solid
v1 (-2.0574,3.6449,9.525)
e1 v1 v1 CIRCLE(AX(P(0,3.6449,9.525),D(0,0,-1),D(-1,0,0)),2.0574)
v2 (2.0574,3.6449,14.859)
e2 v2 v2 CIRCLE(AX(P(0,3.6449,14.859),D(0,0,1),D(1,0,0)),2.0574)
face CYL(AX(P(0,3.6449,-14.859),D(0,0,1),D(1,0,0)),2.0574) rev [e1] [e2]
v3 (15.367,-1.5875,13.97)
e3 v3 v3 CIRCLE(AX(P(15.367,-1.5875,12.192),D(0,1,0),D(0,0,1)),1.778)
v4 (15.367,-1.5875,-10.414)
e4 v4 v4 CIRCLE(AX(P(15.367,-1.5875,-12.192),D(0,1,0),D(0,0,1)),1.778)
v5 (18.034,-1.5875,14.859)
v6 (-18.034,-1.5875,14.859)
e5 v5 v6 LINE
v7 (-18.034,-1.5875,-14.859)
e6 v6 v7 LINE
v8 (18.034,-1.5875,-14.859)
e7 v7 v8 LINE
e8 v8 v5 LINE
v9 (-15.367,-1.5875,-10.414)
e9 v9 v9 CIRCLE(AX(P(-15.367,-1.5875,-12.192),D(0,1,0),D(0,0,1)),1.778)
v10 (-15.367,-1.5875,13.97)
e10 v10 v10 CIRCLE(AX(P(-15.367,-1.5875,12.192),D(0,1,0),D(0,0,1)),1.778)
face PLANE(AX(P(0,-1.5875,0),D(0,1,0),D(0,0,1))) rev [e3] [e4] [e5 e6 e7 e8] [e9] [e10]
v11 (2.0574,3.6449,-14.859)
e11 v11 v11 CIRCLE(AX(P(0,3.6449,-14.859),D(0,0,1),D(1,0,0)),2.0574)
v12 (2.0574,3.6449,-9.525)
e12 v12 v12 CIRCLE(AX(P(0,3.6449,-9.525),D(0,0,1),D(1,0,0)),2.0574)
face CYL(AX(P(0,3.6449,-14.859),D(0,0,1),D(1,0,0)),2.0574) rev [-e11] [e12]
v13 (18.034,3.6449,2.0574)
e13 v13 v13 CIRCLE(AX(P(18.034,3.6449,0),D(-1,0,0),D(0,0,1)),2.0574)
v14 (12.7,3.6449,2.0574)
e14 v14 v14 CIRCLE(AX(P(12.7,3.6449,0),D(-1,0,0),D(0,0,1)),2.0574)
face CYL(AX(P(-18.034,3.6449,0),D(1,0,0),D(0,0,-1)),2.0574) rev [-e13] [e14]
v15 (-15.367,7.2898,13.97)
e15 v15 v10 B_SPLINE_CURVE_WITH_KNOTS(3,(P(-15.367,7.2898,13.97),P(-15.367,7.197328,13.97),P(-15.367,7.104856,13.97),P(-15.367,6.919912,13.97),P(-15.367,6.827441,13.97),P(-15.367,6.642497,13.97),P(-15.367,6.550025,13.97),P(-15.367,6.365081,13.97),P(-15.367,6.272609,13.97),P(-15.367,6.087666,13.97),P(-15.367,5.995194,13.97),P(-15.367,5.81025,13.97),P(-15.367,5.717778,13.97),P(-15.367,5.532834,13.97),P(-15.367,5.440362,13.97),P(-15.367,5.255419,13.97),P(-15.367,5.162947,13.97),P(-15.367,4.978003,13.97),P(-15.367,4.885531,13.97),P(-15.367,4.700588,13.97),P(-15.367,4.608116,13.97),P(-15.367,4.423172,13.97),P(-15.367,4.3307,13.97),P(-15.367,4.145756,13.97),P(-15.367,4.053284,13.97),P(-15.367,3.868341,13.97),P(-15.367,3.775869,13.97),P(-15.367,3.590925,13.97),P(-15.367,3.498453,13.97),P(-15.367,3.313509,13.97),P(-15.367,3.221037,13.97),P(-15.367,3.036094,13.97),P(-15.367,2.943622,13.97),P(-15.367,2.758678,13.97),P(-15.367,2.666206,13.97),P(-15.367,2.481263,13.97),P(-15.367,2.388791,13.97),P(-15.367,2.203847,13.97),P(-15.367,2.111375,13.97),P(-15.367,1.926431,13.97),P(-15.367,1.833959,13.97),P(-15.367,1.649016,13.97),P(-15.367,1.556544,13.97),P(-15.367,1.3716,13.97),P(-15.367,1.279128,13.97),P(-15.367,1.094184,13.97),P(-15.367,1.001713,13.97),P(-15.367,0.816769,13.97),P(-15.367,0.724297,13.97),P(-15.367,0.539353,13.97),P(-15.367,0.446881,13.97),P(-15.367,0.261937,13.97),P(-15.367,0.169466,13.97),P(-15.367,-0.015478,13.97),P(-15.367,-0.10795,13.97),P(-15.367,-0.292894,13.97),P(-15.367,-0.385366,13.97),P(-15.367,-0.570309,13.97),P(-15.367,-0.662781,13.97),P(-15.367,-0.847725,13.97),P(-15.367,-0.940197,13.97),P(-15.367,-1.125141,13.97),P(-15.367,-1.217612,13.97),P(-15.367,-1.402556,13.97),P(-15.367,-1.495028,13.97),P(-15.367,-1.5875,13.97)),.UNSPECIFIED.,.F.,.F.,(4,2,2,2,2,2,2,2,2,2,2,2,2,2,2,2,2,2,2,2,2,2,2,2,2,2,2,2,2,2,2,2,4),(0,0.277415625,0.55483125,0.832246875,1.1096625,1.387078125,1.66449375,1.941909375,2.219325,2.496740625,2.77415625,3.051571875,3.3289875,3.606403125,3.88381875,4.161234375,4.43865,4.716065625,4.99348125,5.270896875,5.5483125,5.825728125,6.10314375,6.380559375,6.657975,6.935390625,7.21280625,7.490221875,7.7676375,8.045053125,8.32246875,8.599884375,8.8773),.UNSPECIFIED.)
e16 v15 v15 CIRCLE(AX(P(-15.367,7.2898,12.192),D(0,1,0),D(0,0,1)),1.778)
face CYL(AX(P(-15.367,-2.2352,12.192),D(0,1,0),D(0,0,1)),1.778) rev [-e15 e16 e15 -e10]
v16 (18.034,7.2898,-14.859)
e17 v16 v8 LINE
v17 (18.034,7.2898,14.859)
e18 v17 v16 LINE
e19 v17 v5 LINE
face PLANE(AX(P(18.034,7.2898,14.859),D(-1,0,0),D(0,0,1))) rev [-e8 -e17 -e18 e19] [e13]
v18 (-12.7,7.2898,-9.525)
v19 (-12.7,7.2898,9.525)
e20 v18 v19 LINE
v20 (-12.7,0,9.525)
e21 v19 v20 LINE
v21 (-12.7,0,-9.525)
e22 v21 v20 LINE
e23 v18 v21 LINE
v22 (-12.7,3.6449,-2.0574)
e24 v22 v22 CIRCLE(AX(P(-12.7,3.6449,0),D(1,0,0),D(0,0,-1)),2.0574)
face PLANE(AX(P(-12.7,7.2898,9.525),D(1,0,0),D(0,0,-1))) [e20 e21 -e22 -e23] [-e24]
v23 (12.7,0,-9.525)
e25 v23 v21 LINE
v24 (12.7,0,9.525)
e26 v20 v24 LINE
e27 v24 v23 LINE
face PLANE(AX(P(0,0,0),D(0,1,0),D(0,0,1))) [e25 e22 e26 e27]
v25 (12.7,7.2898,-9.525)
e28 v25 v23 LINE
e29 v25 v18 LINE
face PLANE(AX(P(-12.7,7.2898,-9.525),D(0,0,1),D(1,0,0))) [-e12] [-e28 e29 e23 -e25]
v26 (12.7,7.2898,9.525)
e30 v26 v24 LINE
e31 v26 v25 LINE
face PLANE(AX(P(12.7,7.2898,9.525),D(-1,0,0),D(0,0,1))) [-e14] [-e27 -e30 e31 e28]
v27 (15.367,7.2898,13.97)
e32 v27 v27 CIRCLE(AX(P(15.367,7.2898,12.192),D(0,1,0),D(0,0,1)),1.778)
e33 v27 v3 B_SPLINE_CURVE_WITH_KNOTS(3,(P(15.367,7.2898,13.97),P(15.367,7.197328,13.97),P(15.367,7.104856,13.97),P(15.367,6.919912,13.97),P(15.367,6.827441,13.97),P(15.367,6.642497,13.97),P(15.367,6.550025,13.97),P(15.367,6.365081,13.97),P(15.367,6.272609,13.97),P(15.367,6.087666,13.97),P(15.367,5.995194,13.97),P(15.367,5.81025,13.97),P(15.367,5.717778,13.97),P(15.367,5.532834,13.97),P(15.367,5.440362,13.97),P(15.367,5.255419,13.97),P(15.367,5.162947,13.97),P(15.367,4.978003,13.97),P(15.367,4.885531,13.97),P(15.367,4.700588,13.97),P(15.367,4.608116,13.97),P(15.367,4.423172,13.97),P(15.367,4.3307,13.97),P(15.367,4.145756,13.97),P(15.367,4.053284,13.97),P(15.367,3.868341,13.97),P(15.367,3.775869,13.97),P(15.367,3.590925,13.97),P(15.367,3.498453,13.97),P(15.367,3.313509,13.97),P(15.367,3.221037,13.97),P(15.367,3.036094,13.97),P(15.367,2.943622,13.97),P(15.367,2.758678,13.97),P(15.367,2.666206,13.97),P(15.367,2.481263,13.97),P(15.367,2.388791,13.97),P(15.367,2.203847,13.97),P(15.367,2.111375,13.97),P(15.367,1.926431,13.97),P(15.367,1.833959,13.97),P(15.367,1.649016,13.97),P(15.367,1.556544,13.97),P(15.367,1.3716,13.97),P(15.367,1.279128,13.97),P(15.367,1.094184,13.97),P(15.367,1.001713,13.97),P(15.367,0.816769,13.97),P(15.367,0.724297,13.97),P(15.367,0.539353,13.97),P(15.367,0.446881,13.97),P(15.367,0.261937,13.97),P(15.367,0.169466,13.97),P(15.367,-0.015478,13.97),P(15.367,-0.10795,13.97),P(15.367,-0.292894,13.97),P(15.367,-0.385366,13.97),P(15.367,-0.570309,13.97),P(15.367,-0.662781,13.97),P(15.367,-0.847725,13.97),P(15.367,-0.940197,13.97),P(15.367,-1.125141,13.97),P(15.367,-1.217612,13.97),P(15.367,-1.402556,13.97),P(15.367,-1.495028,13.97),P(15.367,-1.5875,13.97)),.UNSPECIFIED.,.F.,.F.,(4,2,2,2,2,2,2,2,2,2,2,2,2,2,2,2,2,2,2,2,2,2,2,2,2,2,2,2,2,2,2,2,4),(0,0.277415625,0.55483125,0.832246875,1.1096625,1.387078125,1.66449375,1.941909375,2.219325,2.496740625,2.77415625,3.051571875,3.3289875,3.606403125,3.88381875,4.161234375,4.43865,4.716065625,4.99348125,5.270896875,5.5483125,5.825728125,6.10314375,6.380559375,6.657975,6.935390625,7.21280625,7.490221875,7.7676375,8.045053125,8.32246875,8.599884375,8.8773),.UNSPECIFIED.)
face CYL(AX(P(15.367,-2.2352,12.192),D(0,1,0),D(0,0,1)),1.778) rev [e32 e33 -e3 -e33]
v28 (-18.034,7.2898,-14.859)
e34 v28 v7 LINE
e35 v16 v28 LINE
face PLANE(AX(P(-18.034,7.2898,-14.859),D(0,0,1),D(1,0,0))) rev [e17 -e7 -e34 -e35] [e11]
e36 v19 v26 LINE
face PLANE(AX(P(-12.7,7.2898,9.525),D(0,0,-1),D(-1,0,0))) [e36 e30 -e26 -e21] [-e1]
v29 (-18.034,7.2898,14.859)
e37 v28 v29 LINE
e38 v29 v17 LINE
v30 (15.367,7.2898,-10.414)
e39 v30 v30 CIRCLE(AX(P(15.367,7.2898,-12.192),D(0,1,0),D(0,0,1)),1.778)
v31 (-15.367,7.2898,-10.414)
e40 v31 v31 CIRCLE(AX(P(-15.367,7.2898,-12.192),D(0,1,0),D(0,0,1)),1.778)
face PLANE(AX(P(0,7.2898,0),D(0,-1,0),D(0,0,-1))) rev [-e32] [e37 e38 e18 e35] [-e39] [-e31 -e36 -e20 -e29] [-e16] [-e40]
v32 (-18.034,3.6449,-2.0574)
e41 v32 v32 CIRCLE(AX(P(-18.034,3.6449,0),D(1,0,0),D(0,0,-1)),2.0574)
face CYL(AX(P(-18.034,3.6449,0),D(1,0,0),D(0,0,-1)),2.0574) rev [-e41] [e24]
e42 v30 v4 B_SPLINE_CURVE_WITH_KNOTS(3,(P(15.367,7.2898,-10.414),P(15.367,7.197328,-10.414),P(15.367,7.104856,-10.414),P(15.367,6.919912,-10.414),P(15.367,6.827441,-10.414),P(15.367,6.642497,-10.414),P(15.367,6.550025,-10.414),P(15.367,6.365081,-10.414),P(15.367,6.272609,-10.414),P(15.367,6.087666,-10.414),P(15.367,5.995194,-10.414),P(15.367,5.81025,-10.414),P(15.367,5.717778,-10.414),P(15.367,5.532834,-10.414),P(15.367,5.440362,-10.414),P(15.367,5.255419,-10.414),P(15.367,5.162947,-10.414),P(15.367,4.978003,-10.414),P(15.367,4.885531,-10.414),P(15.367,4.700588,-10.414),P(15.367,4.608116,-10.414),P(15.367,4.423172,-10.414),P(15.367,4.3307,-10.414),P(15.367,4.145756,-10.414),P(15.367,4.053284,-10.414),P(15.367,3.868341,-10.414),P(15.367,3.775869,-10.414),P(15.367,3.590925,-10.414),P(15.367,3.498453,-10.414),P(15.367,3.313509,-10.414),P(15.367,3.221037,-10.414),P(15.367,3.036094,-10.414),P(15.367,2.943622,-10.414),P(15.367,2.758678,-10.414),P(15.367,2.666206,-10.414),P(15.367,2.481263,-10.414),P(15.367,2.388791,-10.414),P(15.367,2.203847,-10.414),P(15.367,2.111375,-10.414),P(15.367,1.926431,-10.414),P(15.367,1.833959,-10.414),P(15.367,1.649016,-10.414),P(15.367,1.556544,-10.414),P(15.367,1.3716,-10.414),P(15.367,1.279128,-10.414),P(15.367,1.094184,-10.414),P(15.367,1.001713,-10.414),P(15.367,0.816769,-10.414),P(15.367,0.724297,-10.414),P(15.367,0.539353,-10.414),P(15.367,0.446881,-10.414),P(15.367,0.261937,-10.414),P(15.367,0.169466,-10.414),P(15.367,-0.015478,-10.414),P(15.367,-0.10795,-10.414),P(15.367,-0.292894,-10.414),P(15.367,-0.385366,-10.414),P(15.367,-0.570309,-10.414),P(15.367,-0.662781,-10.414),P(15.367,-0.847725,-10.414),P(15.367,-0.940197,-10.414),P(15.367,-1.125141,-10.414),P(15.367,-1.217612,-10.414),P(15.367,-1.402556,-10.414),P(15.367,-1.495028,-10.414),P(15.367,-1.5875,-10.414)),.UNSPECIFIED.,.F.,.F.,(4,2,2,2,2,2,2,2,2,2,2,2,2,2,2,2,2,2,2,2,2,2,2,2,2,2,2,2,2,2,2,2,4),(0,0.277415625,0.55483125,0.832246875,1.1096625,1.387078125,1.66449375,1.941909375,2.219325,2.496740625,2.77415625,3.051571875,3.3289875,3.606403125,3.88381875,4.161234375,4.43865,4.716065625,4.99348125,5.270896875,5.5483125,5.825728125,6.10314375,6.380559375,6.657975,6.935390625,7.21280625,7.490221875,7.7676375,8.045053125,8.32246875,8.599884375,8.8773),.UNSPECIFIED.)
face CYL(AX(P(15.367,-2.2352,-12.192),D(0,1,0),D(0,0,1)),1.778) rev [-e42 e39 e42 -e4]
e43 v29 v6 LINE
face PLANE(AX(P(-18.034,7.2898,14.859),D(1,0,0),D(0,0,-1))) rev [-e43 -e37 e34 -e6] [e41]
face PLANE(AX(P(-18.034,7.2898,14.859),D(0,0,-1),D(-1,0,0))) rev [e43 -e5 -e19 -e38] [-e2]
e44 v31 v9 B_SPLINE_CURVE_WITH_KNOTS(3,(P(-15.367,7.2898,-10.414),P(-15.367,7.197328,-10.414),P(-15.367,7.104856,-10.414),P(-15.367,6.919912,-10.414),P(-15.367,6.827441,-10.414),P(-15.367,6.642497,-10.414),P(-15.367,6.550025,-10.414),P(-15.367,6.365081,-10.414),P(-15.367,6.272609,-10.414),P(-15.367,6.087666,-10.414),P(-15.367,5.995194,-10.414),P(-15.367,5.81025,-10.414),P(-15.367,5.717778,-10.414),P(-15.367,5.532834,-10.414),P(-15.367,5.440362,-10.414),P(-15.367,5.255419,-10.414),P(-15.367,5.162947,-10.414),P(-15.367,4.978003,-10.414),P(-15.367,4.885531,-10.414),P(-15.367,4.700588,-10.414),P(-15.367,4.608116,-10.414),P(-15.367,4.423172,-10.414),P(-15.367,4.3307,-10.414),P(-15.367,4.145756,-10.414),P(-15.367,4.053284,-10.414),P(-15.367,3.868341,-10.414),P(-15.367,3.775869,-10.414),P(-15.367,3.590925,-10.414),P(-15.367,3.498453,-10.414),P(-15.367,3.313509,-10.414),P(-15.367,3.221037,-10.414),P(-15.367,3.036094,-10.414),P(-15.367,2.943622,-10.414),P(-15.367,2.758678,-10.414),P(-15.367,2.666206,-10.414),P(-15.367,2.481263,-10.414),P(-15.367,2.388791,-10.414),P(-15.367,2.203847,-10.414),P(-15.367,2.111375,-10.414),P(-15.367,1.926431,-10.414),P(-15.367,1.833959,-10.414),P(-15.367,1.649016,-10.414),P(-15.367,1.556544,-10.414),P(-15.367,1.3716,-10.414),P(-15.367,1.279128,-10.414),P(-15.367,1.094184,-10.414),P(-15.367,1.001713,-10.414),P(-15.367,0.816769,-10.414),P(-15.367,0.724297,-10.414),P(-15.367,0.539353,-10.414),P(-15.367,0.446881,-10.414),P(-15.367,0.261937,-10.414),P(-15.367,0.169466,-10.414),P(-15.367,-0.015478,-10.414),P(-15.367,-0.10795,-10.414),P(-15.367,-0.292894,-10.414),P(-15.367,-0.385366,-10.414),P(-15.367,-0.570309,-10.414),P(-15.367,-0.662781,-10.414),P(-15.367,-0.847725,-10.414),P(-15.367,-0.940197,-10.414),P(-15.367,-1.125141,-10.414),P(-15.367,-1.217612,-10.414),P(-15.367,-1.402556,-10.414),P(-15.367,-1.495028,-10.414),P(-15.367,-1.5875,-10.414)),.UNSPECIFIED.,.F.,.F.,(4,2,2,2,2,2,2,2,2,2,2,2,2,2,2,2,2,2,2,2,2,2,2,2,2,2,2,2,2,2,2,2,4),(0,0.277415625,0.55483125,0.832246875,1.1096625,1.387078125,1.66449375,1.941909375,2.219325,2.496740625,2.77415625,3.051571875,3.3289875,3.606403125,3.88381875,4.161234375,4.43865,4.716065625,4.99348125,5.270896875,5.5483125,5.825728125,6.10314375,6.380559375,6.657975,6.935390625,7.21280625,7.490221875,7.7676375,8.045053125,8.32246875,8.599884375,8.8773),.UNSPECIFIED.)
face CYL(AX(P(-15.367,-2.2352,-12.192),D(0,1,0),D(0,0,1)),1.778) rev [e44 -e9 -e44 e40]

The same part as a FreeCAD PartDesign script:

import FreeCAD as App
import Part
import Sketcher
Q = App.Units.Quantity

doc = App.newDocument("Part")
params = doc.addObject("Spreadsheet::Sheet", "Params")
for row, (alias, value) in enumerate([
    ("sketch1_width", "1 in"),
    ("sketch1_width2", "1.42 in"),
    ("sketch1_height", "1.17 in"),
    ("sketch1_height2", "0.75 in"),
    ("pad1_length", "0.287 in"),
    ("sketch2_width", "1.42 in"),
    ("sketch2_height", "1.17 in"),
    ("pad2_length", "0.0625 in"),
    ("sketch3_diameter", "0.14 in"),
    ("pocket1_length", "0.375 in"),
    ("sketch4_diameter", "0.162 in"),
    ("sketch5_diameter", "0.162 in"),
], start=1):
    params.set(f"A{row}", alias)
    params.set(f"B{row}", "=" + value)
    params.setAlias(f"B{row}", alias)

body = doc.addObject("PartDesign::Body", "Body")

# Sketch on XZ plane
sketch1 = body.newObject("Sketcher::SketchObject", "Sketch")
sketch1.AttachmentSupport = (doc.getObject("XZ_Plane"), [""])
sketch1.MapMode = "FlatFace"
sketch1.addGeometry([
    Part.LineSegment(App.Vector(-18, -15, 0), App.Vector(-18, 15, 0)),  # 0
    Part.LineSegment(App.Vector(-18, 15, 0), App.Vector(18, 15, 0)),  # 1
    Part.LineSegment(App.Vector(18, 15, 0), App.Vector(18, -15, 0)),  # 2
    Part.LineSegment(App.Vector(18, -15, 0), App.Vector(-18, -15, 0)),  # 3
    Part.LineSegment(App.Vector(13, 10, 0), App.Vector(-13, 10, 0)),  # 4
    Part.LineSegment(App.Vector(-13, 10, 0), App.Vector(-13, -10, 0)),  # 5
    Part.LineSegment(App.Vector(-13, -10, 0), App.Vector(13, -10, 0)),  # 6
    Part.LineSegment(App.Vector(13, -10, 0), App.Vector(13, 10, 0)),  # 7
], False)
sketch1.addConstraint([
    Sketcher.Constraint("Coincident", 0, 2, 1, 1),
    Sketcher.Constraint("Coincident", 1, 2, 2, 1),
    Sketcher.Constraint("Coincident", 2, 2, 3, 1),
    Sketcher.Constraint("Coincident", 3, 2, 0, 1),
    Sketcher.Constraint("Coincident", 4, 2, 5, 1),
    Sketcher.Constraint("Coincident", 5, 2, 6, 1),
    Sketcher.Constraint("Coincident", 6, 2, 7, 1),
    Sketcher.Constraint("Coincident", 7, 2, 4, 1),
    Sketcher.Constraint("Vertical", 0),
    Sketcher.Constraint("Horizontal", 1),
    Sketcher.Constraint("Vertical", 2),
    Sketcher.Constraint("Horizontal", 3),
    Sketcher.Constraint("Horizontal", 4),
    Sketcher.Constraint("Vertical", 5),
    Sketcher.Constraint("Horizontal", 6),
    Sketcher.Constraint("Vertical", 7),
    Sketcher.Constraint("Symmetric", 0, 2, 2, 2, -1, 1),
    Sketcher.Constraint("Symmetric", 4, 2, 6, 2, -1, 1),
    Sketcher.Constraint("DistanceX", 4, 2, 4, 1, Q("1 in")),
    Sketcher.Constraint("DistanceX", 1, 1, 1, 2, Q("1.42 in")),
    Sketcher.Constraint("DistanceY", 0, 1, 0, 2, Q("1.17 in")),
    Sketcher.Constraint("DistanceY", 5, 2, 5, 1, Q("0.75 in")),
])
sketch1.setExpression("Constraints[18]", "Params.sketch1_width")
sketch1.setExpression("Constraints[19]", "Params.sketch1_width2")
sketch1.setExpression("Constraints[20]", "Params.sketch1_height")
sketch1.setExpression("Constraints[21]", "Params.sketch1_height2")
pad1 = body.newObject("PartDesign::Pad", "Pad")
pad1.Profile = sketch1
pad1.setExpression("Length", "Params.pad1_length")
pad1.Reversed = True

# Sketch on XZ plane
sketch2 = body.newObject("Sketcher::SketchObject", "Sketch001")
sketch2.AttachmentSupport = (doc.getObject("XZ_Plane"), [""])
sketch2.MapMode = "FlatFace"
sketch2.addGeometry([
    Part.LineSegment(App.Vector(-18, 15, 0), App.Vector(-18, -15, 0)),
    Part.LineSegment(App.Vector(-18, -15, 0), App.Vector(18, -15, 0)),
    Part.LineSegment(App.Vector(18, -15, 0), App.Vector(18, 15, 0)),
    Part.LineSegment(App.Vector(18, 15, 0), App.Vector(-18, 15, 0)),
], False)
sketch2.addConstraint([
    Sketcher.Constraint("Coincident", 0, 2, 1, 1),
    Sketcher.Constraint("Coincident", 1, 2, 2, 1),
    Sketcher.Constraint("Coincident", 2, 2, 3, 1),
    Sketcher.Constraint("Coincident", 3, 2, 0, 1),
    Sketcher.Constraint("Vertical", 0),
    Sketcher.Constraint("Horizontal", 1),
    Sketcher.Constraint("Vertical", 2),
    Sketcher.Constraint("Horizontal", 3),
    Sketcher.Constraint("Symmetric", 0, 2, 2, 2, -1, 1),
    Sketcher.Constraint("DistanceX", 1, 1, 1, 2, Q("1.42 in")),
    Sketcher.Constraint("DistanceY", 0, 2, 0, 1, Q("1.17 in")),
])
sketch2.setExpression("Constraints[9]", "Params.sketch2_width")
sketch2.setExpression("Constraints[10]", "Params.sketch2_height")
pad2 = body.newObject("PartDesign::Pad", "Pad001")
pad2.Profile = sketch2
pad2.setExpression("Length", "Params.pad2_length")

# Sketch on XZ plane
sketch3 = body.newObject("Sketcher::SketchObject", "Sketch002")
sketch3.AttachmentSupport = (doc.getObject("XZ_Plane"), [""])
sketch3.MapMode = "FlatFace"
sketch3.AttachmentOffset = App.Placement(App.Vector(0, 0, -0.287 * 25.4), App.Rotation())
sketch3.addGeometry([
    Part.Circle(App.Vector(-15.4, -12.2, 0), App.Vector(0, 0, 1), 1.8),
    Part.Circle(App.Vector(15.4, -12.2, 0), App.Vector(0, 0, 1), 1.8),
    Part.Circle(App.Vector(15.4, 12.2, 0), App.Vector(0, 0, 1), 1.8),
    Part.Circle(App.Vector(-15.4, 12.2, 0), App.Vector(0, 0, 1), 1.8),
], False)
sketch3.addConstraint([
    Sketcher.Constraint("Equal", 0, 1),
    Sketcher.Constraint("Equal", 1, 2),
    Sketcher.Constraint("Equal", 2, 3),
    Sketcher.Constraint("Symmetric", 0, 3, 2, 3, -1, 1),
    Sketcher.Constraint("Symmetric", 1, 3, 3, 3, -1, 1),
    Sketcher.Constraint("Symmetric", 0, 3, 1, 3, -2),
    Sketcher.Constraint("Diameter", 0, Q("0.14 in")),
    Sketcher.Constraint("DistanceY", 0, 3, -1, 1, Q("0.48 in")),
    Sketcher.Constraint("DistanceX", 0, 3, 1, 3, Q("1.21 in")),
])
sketch3.setExpression("Constraints[6]", "Params.sketch3_diameter")
pocket1 = body.newObject("PartDesign::Pocket", "Pocket")
pocket1.Profile = sketch3
pocket1.setExpression("Length", "Params.pocket1_length")
pocket1.Reversed = True

# Sketch on YZ plane
sketch4 = body.newObject("Sketcher::SketchObject", "Sketch003")
sketch4.AttachmentSupport = (doc.getObject("YZ_Plane"), [""])
sketch4.MapMode = "FlatFace"
sketch4.AttachmentOffset = App.Placement(App.Vector(0, 0, 0.71 * 25.4), App.Rotation())
sketch4.addGeometry(Part.Circle(App.Vector(3.6, 0, 0), App.Vector(0, 0, 1), 2.1), False)
sketch4.addConstraint([
    Sketcher.Constraint("PointOnObject", 0, 3, -1),
    Sketcher.Constraint("Diameter", 0, Q("0.162 in")),
    Sketcher.Constraint("DistanceX", -1, 1, 0, 3, Q("0.1435 in")),
])
sketch4.setExpression("Constraints[1]", "Params.sketch4_diameter")
pocket2 = body.newObject("PartDesign::Pocket", "Pocket001")
pocket2.Profile = sketch4
pocket2.Type = "ThroughAll"
pocket2.Midplane = True

# Sketch on XY plane
sketch5 = body.newObject("Sketcher::SketchObject", "Sketch004")
sketch5.AttachmentSupport = (doc.getObject("XY_Plane"), [""])
sketch5.MapMode = "FlatFace"
sketch5.AttachmentOffset = App.Placement(App.Vector(0, 0, 0.585 * 25.4), App.Rotation())
sketch5.addGeometry(Part.Circle(App.Vector(0, 3.6, 0), App.Vector(0, 0, 1), 2.1), False)
sketch5.addConstraint([
    Sketcher.Constraint("PointOnObject", 0, 3, -2),
    Sketcher.Constraint("Diameter", 0, Q("0.162 in")),
    Sketcher.Constraint("DistanceY", -1, 1, 0, 3, Q("0.1435 in")),
])
sketch5.setExpression("Constraints[1]", "Params.sketch5_diameter")
pocket3 = body.newObject("PartDesign::Pocket", "Pocket002")
pocket3.Profile = sketch5
pocket3.Type = "ThroughAll"

doc.recompute()
